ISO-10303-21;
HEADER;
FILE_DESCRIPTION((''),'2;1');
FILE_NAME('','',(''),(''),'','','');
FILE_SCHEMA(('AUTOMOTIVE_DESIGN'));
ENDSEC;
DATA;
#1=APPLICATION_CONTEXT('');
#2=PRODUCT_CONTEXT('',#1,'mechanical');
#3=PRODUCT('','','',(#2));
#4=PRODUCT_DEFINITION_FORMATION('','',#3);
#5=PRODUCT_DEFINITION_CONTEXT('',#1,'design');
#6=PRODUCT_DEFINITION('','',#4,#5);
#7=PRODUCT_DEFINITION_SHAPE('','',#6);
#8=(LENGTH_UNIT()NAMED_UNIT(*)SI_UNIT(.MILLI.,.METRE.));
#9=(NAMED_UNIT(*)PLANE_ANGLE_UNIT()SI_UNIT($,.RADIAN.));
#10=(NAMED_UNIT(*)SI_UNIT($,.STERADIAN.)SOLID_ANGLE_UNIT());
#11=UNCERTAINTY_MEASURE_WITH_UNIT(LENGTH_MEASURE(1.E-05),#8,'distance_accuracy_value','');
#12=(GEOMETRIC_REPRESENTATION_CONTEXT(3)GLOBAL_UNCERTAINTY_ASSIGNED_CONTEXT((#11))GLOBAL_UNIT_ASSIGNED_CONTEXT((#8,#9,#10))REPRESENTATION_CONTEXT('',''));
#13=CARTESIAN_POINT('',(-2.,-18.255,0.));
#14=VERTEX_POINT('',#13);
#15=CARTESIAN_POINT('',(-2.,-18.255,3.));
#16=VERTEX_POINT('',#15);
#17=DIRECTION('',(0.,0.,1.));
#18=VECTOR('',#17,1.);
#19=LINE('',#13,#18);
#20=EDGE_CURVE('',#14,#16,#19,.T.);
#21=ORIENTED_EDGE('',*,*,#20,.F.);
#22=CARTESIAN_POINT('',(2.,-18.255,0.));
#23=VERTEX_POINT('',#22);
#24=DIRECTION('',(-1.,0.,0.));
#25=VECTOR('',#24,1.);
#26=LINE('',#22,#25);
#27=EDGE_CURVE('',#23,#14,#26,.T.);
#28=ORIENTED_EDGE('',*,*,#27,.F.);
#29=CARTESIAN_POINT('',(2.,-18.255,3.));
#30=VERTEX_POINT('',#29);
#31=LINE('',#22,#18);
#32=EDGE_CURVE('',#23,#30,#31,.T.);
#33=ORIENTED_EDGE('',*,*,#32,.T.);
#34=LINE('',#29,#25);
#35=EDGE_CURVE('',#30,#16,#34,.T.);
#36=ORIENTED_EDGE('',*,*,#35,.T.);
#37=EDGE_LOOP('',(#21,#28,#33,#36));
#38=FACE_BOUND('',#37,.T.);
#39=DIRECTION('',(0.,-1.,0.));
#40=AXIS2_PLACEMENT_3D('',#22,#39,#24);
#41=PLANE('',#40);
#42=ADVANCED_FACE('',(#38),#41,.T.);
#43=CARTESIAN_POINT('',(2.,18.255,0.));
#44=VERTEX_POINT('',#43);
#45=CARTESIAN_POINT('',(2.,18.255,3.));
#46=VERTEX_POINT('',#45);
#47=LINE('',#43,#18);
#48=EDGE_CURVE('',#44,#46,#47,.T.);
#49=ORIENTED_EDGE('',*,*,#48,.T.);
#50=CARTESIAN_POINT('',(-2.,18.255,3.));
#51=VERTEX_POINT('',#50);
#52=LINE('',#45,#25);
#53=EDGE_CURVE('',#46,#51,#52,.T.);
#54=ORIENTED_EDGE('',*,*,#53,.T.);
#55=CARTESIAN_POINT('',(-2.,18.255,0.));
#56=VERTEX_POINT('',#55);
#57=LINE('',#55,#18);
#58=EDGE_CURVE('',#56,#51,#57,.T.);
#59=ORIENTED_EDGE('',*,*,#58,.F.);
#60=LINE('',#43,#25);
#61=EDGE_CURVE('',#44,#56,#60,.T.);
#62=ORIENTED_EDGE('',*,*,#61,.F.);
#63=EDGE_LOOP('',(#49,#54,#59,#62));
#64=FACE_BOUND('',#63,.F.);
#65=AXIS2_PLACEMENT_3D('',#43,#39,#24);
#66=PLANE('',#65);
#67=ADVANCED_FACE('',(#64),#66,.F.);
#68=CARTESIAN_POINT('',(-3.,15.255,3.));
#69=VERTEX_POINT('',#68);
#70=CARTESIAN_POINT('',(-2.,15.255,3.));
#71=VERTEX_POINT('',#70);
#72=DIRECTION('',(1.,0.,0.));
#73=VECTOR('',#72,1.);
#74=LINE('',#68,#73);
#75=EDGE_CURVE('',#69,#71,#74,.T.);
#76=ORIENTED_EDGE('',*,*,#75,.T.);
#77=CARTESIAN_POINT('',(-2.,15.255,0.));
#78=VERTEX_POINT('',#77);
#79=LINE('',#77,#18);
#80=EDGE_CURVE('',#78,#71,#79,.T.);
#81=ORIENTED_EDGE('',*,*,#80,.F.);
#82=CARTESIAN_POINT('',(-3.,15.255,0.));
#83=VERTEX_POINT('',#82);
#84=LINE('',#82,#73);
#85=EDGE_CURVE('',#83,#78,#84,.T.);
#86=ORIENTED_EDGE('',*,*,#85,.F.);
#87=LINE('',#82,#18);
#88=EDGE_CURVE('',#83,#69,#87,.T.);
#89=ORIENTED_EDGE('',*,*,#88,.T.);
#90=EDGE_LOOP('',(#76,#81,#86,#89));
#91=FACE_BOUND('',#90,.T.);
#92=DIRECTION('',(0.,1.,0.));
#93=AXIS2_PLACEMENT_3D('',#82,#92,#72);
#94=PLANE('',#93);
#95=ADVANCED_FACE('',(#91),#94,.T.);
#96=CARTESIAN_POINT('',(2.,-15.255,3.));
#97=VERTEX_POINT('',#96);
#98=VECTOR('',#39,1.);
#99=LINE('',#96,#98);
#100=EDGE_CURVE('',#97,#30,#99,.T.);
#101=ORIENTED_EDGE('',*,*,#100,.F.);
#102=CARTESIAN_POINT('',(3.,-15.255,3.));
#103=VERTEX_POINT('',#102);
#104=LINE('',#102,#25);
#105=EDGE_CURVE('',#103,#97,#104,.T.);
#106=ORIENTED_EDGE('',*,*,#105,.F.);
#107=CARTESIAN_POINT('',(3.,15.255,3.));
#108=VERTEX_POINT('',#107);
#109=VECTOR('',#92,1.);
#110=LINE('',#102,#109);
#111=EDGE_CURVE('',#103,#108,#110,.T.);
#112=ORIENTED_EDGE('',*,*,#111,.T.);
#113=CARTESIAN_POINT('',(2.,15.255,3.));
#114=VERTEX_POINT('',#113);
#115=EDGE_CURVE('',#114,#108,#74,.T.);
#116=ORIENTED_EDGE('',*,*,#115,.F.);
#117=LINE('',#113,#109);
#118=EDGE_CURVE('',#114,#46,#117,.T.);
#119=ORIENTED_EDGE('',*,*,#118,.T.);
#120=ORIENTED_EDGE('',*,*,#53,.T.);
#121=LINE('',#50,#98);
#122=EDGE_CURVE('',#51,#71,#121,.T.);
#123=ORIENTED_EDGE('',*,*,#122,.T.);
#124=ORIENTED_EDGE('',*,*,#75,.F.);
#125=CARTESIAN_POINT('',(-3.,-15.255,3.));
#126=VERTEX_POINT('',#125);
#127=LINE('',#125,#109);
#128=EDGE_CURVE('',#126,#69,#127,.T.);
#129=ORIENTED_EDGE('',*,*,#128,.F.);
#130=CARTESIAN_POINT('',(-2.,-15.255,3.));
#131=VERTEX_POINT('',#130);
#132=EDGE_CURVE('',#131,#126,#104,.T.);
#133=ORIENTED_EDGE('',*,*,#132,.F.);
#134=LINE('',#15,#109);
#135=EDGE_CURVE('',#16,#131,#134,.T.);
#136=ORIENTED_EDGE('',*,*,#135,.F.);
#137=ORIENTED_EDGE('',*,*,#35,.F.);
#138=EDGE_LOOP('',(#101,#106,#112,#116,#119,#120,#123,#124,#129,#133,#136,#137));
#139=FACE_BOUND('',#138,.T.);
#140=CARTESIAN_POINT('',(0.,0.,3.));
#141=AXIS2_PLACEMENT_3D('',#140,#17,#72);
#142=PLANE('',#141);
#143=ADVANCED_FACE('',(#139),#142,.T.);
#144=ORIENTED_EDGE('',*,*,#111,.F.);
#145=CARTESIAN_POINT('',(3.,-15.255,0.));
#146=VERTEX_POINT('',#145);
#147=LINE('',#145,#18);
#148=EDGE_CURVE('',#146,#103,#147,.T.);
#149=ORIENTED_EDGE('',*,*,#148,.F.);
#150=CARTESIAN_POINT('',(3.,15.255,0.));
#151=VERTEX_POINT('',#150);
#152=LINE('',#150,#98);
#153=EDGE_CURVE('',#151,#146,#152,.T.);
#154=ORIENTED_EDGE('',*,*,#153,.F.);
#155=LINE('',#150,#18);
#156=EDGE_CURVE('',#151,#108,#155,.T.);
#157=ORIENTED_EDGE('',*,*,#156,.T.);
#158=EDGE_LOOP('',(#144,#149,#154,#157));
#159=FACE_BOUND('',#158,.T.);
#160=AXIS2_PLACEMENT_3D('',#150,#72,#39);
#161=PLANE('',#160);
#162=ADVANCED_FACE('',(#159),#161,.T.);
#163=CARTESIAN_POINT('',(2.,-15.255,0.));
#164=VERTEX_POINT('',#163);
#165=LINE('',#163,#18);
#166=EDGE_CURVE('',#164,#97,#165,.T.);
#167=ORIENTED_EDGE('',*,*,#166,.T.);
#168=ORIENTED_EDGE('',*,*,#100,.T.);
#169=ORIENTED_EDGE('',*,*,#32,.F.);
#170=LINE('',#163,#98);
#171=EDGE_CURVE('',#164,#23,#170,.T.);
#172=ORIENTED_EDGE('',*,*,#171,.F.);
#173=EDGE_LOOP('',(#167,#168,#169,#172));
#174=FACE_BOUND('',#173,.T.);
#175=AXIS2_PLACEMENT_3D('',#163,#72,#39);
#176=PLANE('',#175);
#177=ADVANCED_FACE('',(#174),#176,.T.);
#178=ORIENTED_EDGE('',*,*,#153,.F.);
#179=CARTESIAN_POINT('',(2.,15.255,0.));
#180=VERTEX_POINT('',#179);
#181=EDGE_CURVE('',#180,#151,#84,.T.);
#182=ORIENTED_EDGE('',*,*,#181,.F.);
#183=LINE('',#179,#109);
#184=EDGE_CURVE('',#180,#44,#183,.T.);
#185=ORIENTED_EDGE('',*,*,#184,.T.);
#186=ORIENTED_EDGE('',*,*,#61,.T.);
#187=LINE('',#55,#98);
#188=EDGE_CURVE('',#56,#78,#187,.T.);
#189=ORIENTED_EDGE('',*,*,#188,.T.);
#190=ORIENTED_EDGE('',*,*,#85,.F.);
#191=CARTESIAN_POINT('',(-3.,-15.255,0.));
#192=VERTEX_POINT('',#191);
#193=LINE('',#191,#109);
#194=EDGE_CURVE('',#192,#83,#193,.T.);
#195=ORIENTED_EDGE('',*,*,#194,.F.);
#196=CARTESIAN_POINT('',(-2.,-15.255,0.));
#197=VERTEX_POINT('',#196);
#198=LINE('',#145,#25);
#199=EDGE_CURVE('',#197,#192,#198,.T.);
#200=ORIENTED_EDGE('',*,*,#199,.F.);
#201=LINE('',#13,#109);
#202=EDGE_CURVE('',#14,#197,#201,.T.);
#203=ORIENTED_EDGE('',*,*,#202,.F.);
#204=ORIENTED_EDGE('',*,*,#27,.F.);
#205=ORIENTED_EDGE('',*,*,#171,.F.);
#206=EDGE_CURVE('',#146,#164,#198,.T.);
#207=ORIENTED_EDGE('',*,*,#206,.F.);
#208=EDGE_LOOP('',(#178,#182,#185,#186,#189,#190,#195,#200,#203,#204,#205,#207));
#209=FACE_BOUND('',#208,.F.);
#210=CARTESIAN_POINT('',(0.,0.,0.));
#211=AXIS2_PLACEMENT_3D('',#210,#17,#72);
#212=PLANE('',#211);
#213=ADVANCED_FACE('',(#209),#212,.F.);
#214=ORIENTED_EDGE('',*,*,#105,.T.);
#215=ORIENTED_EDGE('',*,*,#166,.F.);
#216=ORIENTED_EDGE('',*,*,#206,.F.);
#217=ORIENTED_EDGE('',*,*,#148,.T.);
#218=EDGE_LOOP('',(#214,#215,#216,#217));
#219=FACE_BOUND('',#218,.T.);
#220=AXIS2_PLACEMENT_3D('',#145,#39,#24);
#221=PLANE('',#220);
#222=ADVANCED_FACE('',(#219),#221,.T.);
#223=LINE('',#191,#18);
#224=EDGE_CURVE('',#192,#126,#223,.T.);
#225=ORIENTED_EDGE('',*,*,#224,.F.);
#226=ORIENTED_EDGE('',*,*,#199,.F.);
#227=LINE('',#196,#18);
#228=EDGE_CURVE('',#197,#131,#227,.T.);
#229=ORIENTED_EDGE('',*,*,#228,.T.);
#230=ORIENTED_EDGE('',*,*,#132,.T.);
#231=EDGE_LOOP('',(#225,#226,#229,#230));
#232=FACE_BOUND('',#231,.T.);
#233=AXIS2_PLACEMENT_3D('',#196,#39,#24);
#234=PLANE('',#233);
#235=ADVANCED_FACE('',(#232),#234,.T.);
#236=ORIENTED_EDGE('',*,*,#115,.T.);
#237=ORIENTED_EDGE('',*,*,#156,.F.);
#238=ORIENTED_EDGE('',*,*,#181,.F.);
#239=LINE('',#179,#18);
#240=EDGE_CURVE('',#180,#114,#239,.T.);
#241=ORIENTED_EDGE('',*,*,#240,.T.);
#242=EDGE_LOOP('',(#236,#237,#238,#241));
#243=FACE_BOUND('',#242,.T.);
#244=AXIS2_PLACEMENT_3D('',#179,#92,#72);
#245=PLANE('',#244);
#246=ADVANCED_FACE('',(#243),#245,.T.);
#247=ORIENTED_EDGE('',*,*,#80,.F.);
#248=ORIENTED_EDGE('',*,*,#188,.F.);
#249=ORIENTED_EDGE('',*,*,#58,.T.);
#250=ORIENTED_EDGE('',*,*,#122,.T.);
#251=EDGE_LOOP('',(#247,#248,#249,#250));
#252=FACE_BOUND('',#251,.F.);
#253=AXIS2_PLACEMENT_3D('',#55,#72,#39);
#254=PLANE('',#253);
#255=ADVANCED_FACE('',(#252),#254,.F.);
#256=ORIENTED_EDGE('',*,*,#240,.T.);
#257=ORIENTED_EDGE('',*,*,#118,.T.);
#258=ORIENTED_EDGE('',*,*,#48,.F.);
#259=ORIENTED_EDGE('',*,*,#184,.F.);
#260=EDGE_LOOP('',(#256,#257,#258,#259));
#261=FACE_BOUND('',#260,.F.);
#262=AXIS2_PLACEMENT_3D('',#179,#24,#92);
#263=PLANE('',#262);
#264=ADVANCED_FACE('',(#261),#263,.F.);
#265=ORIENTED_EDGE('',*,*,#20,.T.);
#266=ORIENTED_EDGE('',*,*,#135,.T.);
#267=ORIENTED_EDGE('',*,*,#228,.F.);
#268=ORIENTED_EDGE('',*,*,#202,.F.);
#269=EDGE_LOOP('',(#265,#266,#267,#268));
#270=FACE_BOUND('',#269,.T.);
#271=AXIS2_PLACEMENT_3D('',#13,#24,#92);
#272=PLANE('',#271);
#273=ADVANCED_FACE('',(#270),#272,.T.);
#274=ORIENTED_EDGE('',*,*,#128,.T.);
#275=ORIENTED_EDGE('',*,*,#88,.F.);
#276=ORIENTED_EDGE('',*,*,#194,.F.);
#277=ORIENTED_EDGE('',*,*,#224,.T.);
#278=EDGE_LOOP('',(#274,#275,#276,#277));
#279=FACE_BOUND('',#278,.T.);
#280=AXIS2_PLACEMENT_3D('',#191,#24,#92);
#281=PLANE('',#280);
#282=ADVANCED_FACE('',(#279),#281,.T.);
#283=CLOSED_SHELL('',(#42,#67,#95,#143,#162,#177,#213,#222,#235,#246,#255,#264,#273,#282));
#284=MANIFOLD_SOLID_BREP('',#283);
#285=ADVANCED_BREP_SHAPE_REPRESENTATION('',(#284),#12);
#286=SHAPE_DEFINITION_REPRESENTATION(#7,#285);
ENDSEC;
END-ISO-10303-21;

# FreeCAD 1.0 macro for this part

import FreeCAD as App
import Part
import Sketcher

doc = App.newDocument("Part")
body = doc.addObject("PartDesign::Body", "Body")

# Sketch on XY plane
sketch1 = body.newObject("Sketcher::SketchObject", "Sketch")
sketch1.AttachmentSupport = (doc.getObject("XY_Plane"), [""])
sketch1.MapMode = "FlatFace"
sketch1.addGeometry([
    Part.LineSegment(App.Vector(-2, 15.255, 0), App.Vector(-3, 15.255, 0)),  # 0
    Part.LineSegment(App.Vector(-3, 15.255, 0), App.Vector(-3, -15.255, 0)),  # 1
    Part.LineSegment(App.Vector(-3, -15.255, 0), App.Vector(-2, -15.255, 0)),  # 2
    Part.LineSegment(App.Vector(-2, -15.255, 0), App.Vector(-2, -18.255, 0)),  # 3
    Part.LineSegment(App.Vector(-2, -18.255, 0), App.Vector(2, -18.255, 0)),  # 4
    Part.LineSegment(App.Vector(2, -18.255, 0), App.Vector(2, -15.255, 0)),  # 5
    Part.LineSegment(App.Vector(2, -15.255, 0), App.Vector(3, -15.255, 0)),  # 6
    Part.LineSegment(App.Vector(3, -15.255, 0), App.Vector(3, 15.255, 0)),  # 7
    Part.LineSegment(App.Vector(3, 15.255, 0), App.Vector(2, 15.255, 0)),  # 8
    Part.LineSegment(App.Vector(2, 15.255, 0), App.Vector(2, 18.255, 0)),  # 9
    Part.LineSegment(App.Vector(2, 18.255, 0), App.Vector(-2, 18.255, 0)),  # 10
    Part.LineSegment(App.Vector(-2, 18.255, 0), App.Vector(-2, 15.255, 0)),  # 11
], False)
sketch1.addConstraint([
    Sketcher.Constraint("Coincident", 0, 2, 1, 1),
    Sketcher.Constraint("Coincident", 1, 2, 2, 1),
    Sketcher.Constraint("Coincident", 2, 2, 3, 1),
    Sketcher.Constraint("Coincident", 3, 2, 4, 1),
    Sketcher.Constraint("Coincident", 4, 2, 5, 1),
    Sketcher.Constraint("Coincident", 5, 2, 6, 1),
    Sketcher.Constraint("Coincident", 6, 2, 7, 1),
    Sketcher.Constraint("Coincident", 7, 2, 8, 1),
    Sketcher.Constraint("Coincident", 8, 2, 9, 1),
    Sketcher.Constraint("Coincident", 9, 2, 10, 1),
    Sketcher.Constraint("Coincident", 10, 2, 11, 1),
    Sketcher.Constraint("Coincident", 11, 2, 0, 1),
    Sketcher.Constraint("Horizontal", 0),
    Sketcher.Constraint("Vertical", 1),
    Sketcher.Constraint("Horizontal", 2),
    Sketcher.Constraint("Vertical", 3),
    Sketcher.Constraint("Horizontal", 4),
    Sketcher.Constraint("Vertical", 5),
    Sketcher.Constraint("Horizontal", 6),
    Sketcher.Constraint("Vertical", 7),
    Sketcher.Constraint("Horizontal", 8),
    Sketcher.Constraint("Vertical", 9),
    Sketcher.Constraint("Horizontal", 10),
    Sketcher.Constraint("Vertical", 11),
    Sketcher.Constraint("Symmetric", 0, 2, 6, 2, -1, 1),
    Sketcher.Constraint("Symmetric", 2, 2, 8, 2, -1, 1),
    Sketcher.Constraint("Symmetric", 4, 2, 10, 2, -1, 1),
    Sketcher.Constraint("Symmetric", 2, 2, 5, 2, -2),
    Sketcher.Constraint("DistanceX", 4, 1, 4, 2, 4.0),
    Sketcher.Constraint("DistanceY", 3, 2, 3, 1, 3.0),
    Sketcher.Constraint("DistanceX", 0, 2, -1, 1, 3.0),
    Sketcher.Constraint("DistanceY", 1, 2, 1, 1, 30.51),
])
pad1 = body.newObject("PartDesign::Pad", "Pad")
pad1.Profile = sketch1
pad1.Length = 3

doc.recompute()
